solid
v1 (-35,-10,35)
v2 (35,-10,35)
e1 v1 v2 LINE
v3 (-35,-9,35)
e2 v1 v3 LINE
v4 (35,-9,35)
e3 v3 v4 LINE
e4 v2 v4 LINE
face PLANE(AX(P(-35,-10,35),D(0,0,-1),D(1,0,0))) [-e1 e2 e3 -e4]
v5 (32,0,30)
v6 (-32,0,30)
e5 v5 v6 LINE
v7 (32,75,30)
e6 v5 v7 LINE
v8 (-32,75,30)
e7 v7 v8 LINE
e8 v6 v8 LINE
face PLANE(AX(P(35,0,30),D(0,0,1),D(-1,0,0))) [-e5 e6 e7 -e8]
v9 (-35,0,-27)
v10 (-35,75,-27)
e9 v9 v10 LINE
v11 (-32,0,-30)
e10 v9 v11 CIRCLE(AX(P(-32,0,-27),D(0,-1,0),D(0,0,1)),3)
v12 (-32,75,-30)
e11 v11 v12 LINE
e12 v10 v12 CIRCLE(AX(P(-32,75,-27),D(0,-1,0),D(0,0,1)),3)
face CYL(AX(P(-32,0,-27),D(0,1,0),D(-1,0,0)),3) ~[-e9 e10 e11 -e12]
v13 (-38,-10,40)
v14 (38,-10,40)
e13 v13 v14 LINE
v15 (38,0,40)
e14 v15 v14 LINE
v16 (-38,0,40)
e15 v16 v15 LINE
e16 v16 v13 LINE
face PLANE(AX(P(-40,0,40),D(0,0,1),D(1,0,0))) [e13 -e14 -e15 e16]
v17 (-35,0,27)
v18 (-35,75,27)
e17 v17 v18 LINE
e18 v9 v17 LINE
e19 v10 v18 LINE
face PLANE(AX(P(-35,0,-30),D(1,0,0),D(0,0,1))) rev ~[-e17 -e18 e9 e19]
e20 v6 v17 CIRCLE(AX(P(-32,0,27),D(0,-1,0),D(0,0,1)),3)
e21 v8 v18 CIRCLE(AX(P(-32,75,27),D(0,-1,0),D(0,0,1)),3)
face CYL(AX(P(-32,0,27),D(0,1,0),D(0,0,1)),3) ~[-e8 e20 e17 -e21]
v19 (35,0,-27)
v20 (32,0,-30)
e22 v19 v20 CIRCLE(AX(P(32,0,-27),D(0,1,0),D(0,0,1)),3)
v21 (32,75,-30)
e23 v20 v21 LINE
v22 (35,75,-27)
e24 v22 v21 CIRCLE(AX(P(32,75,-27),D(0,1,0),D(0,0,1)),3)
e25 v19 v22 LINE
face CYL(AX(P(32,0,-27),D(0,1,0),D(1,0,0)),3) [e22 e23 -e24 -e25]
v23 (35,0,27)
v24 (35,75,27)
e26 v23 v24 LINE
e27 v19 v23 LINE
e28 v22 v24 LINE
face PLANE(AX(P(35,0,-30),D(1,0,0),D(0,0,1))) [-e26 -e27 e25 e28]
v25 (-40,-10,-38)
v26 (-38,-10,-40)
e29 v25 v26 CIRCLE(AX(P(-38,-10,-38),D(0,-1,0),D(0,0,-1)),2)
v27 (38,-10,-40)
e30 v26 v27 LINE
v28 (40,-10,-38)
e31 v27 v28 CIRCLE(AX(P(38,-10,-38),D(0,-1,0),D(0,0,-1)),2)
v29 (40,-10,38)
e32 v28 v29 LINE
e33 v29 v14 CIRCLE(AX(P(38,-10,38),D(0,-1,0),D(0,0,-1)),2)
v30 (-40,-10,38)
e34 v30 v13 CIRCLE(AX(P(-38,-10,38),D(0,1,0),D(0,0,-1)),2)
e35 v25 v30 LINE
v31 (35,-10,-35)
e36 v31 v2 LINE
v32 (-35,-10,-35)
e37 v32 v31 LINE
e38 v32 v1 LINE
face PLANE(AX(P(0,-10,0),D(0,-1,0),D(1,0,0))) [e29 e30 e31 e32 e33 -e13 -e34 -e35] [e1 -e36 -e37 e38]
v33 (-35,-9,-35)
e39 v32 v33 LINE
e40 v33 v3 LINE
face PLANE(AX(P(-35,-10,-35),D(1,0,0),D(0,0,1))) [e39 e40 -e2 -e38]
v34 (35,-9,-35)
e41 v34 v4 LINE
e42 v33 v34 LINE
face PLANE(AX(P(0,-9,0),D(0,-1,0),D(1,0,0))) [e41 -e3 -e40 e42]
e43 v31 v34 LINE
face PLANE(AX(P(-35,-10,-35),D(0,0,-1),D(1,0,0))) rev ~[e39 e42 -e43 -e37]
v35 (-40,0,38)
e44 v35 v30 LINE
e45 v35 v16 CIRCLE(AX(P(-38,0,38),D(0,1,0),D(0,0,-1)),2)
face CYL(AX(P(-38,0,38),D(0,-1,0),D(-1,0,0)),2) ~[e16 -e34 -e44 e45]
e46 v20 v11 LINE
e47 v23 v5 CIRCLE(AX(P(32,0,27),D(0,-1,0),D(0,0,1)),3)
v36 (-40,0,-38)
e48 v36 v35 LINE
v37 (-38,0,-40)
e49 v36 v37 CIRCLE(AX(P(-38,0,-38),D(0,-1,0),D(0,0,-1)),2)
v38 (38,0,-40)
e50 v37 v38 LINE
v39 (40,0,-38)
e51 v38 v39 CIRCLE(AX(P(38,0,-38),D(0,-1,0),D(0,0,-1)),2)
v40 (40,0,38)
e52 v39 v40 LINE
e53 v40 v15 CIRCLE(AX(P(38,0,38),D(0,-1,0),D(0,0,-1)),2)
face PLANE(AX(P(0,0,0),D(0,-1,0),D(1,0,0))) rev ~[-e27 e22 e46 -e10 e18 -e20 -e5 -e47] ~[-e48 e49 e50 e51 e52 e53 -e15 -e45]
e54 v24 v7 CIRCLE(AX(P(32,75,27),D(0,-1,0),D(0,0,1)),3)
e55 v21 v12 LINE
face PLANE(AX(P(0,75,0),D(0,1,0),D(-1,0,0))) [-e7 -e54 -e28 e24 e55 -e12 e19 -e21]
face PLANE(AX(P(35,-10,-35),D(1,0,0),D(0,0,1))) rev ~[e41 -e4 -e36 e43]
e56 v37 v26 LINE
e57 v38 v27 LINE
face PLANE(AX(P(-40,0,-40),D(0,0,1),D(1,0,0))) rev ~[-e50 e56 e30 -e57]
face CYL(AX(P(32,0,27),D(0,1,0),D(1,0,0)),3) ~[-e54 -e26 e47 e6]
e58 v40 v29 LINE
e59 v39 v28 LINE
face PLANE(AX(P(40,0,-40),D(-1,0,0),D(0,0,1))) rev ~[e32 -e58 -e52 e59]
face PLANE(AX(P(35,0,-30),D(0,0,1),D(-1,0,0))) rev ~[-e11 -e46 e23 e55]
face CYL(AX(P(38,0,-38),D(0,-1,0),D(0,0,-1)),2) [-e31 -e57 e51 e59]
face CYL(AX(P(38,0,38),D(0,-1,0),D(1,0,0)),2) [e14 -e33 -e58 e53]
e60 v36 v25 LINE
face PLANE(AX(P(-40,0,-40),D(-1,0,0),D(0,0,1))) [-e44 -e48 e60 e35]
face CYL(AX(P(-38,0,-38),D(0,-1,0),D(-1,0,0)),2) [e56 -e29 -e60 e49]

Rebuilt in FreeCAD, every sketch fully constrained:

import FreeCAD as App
import Part
import Sketcher
Q = App.Units.Quantity


def edges_at(feature, points):
    """Names of the edges that pass closest to the given points."""
    edges = feature.Shape.Edges
    near = lambda p: min(range(len(edges)), key=lambda i: edges[i].distToShape(Part.Vertex(*p))[0])
    return sorted({f"Edge{near(p) + 1}" for p in points})


def add_polygon(sketch, points):
    """Adds a closed chain of lines whose ends are joined by coincident constraints."""
    first, n = sketch.GeometryCount, len(points)
    for a, b in zip(points, points[1:] + points[:1]):
        sketch.addGeometry(Part.LineSegment(App.Vector(*a, 0), App.Vector(*b, 0)), False)
    for i in range(n):
        sketch.addConstraint(Sketcher.Constraint("Coincident", first + i, 2, first + (i + 1) % n, 1))

doc = App.newDocument("Part")
params = doc.addObject("Spreadsheet::Sheet", "Params")
for row, (alias, value) in enumerate([
    ("sketch1_width", "80 mm"),
    ("pad1_length", "10 mm"),
    ("fillet_radius", "2 mm"),
    ("sketch2_width", "70 mm"),
    ("pocket1_length", "1 mm"),
    ("sketch3_width", "70 mm"),
    ("sketch3_height", "60 mm"),
    ("pad2_length", "75 mm"),
    ("fillet2_radius", "3 mm"),
], start=1):
    params.set(f"A{row}", alias)
    params.set(f"B{row}", "=" + value)
    params.setAlias(f"B{row}", alias)

body = doc.addObject("PartDesign::Body", "Body")

sketch1 = doc.addObject("Sketcher::SketchObject", "Sketch")
body.addObject(sketch1)
sketch1.AttachmentSupport = (doc.XZ_Plane, [""])
sketch1.MapMode = "FlatFace"
add_polygon(sketch1, [(-40, 40), (-40, -40), (40, -40), (40, 40)])
sketch1.addConstraint([
    Sketcher.Constraint("Vertical", 0),
    Sketcher.Constraint("Horizontal", 1),
    Sketcher.Constraint("Vertical", 2),
    Sketcher.Constraint("Horizontal", 3),
    Sketcher.Constraint("Symmetric", 0, 2, 2, 2, -1, 1),
    Sketcher.Constraint("Equal", 3, 0),
    Sketcher.Constraint("DistanceX", 1, 1, 1, 2, Q("80 mm")),
])
sketch1.setExpression("Constraints[10]", "Params.sketch1_width")
pad1 = doc.addObject("PartDesign::Pad", "Pad")
body.addObject(pad1)
pad1.Profile = sketch1
pad1.setExpression("Length", "Params.pad1_length")
doc.recompute()

fillet = doc.addObject("PartDesign::Fillet", "Fillet")
body.addObject(fillet)
fillet.Base = (pad1, edges_at(pad1, [
    (-40, -5, 40),
    (40, -5, 40),
    (40, -5, -40),
    (-40, -5, -40),
]))
fillet.setExpression("Radius", "Params.fillet_radius")

sketch2 = doc.addObject("Sketcher::SketchObject", "Sketch001")
body.addObject(sketch2)
sketch2.AttachmentSupport = (doc.XZ_Plane, [""])
sketch2.MapMode = "FlatFace"
sketch2.AttachmentOffset = App.Placement(App.Vector(0, 0, 10), App.Rotation())
add_polygon(sketch2, [(-35, 35), (-35, -35), (35, -35), (35, 35)])
sketch2.addConstraint([
    Sketcher.Constraint("Vertical", 0),
    Sketcher.Constraint("Horizontal", 1),
    Sketcher.Constraint("Vertical", 2),
    Sketcher.Constraint("Horizontal", 3),
    Sketcher.Constraint("Symmetric", 0, 2, 2, 2, -1, 1),
    Sketcher.Constraint("Equal", 3, 0),
    Sketcher.Constraint("DistanceX", 1, 1, 1, 2, Q("70 mm")),
])
sketch2.setExpression("Constraints[10]", "Params.sketch2_width")
pocket1 = doc.addObject("PartDesign::Pocket", "Pocket")
body.addObject(pocket1)
pocket1.Profile = sketch2
pocket1.setExpression("Length", "Params.pocket1_length")

sketch3 = doc.addObject("Sketcher::SketchObject", "Sketch002")
body.addObject(sketch3)
sketch3.AttachmentSupport = (doc.XZ_Plane, [""])
sketch3.MapMode = "FlatFace"
add_polygon(sketch3, [(35, 30), (35, -30), (-35, -30), (-35, 30)])
sketch3.addConstraint([
    Sketcher.Constraint("Vertical", 0),
    Sketcher.Constraint("Horizontal", 1),
    Sketcher.Constraint("Vertical", 2),
    Sketcher.Constraint("Horizontal", 3),
    Sketcher.Constraint("Symmetric", 0, 2, 2, 2, -1, 1),
    Sketcher.Constraint("DistanceX", 1, 2, 1, 1, Q("70 mm")),
    Sketcher.Constraint("DistanceY", 0, 2, 0, 1, Q("60 mm")),
])
sketch3.setExpression("Constraints[9]", "Params.sketch3_width")
sketch3.setExpression("Constraints[10]", "Params.sketch3_height")
pad2 = doc.addObject("PartDesign::Pad", "Pad001")
body.addObject(pad2)
pad2.Profile = sketch3
pad2.setExpression("Length", "Params.pad2_length")
pad2.Reversed = True
doc.recompute()

fillet2 = doc.addObject("PartDesign::Fillet", "Fillet001")
body.addObject(fillet2)
fillet2.Base = (pad2, edges_at(pad2, [
    (35, 37.5, 30),
    (-35, 37.5, 30),
    (35, 37.5, -30),
    (-35, 37.5, -30),
]))
fillet2.setExpression("Radius", "Params.fillet2_radius")

doc.recompute()
